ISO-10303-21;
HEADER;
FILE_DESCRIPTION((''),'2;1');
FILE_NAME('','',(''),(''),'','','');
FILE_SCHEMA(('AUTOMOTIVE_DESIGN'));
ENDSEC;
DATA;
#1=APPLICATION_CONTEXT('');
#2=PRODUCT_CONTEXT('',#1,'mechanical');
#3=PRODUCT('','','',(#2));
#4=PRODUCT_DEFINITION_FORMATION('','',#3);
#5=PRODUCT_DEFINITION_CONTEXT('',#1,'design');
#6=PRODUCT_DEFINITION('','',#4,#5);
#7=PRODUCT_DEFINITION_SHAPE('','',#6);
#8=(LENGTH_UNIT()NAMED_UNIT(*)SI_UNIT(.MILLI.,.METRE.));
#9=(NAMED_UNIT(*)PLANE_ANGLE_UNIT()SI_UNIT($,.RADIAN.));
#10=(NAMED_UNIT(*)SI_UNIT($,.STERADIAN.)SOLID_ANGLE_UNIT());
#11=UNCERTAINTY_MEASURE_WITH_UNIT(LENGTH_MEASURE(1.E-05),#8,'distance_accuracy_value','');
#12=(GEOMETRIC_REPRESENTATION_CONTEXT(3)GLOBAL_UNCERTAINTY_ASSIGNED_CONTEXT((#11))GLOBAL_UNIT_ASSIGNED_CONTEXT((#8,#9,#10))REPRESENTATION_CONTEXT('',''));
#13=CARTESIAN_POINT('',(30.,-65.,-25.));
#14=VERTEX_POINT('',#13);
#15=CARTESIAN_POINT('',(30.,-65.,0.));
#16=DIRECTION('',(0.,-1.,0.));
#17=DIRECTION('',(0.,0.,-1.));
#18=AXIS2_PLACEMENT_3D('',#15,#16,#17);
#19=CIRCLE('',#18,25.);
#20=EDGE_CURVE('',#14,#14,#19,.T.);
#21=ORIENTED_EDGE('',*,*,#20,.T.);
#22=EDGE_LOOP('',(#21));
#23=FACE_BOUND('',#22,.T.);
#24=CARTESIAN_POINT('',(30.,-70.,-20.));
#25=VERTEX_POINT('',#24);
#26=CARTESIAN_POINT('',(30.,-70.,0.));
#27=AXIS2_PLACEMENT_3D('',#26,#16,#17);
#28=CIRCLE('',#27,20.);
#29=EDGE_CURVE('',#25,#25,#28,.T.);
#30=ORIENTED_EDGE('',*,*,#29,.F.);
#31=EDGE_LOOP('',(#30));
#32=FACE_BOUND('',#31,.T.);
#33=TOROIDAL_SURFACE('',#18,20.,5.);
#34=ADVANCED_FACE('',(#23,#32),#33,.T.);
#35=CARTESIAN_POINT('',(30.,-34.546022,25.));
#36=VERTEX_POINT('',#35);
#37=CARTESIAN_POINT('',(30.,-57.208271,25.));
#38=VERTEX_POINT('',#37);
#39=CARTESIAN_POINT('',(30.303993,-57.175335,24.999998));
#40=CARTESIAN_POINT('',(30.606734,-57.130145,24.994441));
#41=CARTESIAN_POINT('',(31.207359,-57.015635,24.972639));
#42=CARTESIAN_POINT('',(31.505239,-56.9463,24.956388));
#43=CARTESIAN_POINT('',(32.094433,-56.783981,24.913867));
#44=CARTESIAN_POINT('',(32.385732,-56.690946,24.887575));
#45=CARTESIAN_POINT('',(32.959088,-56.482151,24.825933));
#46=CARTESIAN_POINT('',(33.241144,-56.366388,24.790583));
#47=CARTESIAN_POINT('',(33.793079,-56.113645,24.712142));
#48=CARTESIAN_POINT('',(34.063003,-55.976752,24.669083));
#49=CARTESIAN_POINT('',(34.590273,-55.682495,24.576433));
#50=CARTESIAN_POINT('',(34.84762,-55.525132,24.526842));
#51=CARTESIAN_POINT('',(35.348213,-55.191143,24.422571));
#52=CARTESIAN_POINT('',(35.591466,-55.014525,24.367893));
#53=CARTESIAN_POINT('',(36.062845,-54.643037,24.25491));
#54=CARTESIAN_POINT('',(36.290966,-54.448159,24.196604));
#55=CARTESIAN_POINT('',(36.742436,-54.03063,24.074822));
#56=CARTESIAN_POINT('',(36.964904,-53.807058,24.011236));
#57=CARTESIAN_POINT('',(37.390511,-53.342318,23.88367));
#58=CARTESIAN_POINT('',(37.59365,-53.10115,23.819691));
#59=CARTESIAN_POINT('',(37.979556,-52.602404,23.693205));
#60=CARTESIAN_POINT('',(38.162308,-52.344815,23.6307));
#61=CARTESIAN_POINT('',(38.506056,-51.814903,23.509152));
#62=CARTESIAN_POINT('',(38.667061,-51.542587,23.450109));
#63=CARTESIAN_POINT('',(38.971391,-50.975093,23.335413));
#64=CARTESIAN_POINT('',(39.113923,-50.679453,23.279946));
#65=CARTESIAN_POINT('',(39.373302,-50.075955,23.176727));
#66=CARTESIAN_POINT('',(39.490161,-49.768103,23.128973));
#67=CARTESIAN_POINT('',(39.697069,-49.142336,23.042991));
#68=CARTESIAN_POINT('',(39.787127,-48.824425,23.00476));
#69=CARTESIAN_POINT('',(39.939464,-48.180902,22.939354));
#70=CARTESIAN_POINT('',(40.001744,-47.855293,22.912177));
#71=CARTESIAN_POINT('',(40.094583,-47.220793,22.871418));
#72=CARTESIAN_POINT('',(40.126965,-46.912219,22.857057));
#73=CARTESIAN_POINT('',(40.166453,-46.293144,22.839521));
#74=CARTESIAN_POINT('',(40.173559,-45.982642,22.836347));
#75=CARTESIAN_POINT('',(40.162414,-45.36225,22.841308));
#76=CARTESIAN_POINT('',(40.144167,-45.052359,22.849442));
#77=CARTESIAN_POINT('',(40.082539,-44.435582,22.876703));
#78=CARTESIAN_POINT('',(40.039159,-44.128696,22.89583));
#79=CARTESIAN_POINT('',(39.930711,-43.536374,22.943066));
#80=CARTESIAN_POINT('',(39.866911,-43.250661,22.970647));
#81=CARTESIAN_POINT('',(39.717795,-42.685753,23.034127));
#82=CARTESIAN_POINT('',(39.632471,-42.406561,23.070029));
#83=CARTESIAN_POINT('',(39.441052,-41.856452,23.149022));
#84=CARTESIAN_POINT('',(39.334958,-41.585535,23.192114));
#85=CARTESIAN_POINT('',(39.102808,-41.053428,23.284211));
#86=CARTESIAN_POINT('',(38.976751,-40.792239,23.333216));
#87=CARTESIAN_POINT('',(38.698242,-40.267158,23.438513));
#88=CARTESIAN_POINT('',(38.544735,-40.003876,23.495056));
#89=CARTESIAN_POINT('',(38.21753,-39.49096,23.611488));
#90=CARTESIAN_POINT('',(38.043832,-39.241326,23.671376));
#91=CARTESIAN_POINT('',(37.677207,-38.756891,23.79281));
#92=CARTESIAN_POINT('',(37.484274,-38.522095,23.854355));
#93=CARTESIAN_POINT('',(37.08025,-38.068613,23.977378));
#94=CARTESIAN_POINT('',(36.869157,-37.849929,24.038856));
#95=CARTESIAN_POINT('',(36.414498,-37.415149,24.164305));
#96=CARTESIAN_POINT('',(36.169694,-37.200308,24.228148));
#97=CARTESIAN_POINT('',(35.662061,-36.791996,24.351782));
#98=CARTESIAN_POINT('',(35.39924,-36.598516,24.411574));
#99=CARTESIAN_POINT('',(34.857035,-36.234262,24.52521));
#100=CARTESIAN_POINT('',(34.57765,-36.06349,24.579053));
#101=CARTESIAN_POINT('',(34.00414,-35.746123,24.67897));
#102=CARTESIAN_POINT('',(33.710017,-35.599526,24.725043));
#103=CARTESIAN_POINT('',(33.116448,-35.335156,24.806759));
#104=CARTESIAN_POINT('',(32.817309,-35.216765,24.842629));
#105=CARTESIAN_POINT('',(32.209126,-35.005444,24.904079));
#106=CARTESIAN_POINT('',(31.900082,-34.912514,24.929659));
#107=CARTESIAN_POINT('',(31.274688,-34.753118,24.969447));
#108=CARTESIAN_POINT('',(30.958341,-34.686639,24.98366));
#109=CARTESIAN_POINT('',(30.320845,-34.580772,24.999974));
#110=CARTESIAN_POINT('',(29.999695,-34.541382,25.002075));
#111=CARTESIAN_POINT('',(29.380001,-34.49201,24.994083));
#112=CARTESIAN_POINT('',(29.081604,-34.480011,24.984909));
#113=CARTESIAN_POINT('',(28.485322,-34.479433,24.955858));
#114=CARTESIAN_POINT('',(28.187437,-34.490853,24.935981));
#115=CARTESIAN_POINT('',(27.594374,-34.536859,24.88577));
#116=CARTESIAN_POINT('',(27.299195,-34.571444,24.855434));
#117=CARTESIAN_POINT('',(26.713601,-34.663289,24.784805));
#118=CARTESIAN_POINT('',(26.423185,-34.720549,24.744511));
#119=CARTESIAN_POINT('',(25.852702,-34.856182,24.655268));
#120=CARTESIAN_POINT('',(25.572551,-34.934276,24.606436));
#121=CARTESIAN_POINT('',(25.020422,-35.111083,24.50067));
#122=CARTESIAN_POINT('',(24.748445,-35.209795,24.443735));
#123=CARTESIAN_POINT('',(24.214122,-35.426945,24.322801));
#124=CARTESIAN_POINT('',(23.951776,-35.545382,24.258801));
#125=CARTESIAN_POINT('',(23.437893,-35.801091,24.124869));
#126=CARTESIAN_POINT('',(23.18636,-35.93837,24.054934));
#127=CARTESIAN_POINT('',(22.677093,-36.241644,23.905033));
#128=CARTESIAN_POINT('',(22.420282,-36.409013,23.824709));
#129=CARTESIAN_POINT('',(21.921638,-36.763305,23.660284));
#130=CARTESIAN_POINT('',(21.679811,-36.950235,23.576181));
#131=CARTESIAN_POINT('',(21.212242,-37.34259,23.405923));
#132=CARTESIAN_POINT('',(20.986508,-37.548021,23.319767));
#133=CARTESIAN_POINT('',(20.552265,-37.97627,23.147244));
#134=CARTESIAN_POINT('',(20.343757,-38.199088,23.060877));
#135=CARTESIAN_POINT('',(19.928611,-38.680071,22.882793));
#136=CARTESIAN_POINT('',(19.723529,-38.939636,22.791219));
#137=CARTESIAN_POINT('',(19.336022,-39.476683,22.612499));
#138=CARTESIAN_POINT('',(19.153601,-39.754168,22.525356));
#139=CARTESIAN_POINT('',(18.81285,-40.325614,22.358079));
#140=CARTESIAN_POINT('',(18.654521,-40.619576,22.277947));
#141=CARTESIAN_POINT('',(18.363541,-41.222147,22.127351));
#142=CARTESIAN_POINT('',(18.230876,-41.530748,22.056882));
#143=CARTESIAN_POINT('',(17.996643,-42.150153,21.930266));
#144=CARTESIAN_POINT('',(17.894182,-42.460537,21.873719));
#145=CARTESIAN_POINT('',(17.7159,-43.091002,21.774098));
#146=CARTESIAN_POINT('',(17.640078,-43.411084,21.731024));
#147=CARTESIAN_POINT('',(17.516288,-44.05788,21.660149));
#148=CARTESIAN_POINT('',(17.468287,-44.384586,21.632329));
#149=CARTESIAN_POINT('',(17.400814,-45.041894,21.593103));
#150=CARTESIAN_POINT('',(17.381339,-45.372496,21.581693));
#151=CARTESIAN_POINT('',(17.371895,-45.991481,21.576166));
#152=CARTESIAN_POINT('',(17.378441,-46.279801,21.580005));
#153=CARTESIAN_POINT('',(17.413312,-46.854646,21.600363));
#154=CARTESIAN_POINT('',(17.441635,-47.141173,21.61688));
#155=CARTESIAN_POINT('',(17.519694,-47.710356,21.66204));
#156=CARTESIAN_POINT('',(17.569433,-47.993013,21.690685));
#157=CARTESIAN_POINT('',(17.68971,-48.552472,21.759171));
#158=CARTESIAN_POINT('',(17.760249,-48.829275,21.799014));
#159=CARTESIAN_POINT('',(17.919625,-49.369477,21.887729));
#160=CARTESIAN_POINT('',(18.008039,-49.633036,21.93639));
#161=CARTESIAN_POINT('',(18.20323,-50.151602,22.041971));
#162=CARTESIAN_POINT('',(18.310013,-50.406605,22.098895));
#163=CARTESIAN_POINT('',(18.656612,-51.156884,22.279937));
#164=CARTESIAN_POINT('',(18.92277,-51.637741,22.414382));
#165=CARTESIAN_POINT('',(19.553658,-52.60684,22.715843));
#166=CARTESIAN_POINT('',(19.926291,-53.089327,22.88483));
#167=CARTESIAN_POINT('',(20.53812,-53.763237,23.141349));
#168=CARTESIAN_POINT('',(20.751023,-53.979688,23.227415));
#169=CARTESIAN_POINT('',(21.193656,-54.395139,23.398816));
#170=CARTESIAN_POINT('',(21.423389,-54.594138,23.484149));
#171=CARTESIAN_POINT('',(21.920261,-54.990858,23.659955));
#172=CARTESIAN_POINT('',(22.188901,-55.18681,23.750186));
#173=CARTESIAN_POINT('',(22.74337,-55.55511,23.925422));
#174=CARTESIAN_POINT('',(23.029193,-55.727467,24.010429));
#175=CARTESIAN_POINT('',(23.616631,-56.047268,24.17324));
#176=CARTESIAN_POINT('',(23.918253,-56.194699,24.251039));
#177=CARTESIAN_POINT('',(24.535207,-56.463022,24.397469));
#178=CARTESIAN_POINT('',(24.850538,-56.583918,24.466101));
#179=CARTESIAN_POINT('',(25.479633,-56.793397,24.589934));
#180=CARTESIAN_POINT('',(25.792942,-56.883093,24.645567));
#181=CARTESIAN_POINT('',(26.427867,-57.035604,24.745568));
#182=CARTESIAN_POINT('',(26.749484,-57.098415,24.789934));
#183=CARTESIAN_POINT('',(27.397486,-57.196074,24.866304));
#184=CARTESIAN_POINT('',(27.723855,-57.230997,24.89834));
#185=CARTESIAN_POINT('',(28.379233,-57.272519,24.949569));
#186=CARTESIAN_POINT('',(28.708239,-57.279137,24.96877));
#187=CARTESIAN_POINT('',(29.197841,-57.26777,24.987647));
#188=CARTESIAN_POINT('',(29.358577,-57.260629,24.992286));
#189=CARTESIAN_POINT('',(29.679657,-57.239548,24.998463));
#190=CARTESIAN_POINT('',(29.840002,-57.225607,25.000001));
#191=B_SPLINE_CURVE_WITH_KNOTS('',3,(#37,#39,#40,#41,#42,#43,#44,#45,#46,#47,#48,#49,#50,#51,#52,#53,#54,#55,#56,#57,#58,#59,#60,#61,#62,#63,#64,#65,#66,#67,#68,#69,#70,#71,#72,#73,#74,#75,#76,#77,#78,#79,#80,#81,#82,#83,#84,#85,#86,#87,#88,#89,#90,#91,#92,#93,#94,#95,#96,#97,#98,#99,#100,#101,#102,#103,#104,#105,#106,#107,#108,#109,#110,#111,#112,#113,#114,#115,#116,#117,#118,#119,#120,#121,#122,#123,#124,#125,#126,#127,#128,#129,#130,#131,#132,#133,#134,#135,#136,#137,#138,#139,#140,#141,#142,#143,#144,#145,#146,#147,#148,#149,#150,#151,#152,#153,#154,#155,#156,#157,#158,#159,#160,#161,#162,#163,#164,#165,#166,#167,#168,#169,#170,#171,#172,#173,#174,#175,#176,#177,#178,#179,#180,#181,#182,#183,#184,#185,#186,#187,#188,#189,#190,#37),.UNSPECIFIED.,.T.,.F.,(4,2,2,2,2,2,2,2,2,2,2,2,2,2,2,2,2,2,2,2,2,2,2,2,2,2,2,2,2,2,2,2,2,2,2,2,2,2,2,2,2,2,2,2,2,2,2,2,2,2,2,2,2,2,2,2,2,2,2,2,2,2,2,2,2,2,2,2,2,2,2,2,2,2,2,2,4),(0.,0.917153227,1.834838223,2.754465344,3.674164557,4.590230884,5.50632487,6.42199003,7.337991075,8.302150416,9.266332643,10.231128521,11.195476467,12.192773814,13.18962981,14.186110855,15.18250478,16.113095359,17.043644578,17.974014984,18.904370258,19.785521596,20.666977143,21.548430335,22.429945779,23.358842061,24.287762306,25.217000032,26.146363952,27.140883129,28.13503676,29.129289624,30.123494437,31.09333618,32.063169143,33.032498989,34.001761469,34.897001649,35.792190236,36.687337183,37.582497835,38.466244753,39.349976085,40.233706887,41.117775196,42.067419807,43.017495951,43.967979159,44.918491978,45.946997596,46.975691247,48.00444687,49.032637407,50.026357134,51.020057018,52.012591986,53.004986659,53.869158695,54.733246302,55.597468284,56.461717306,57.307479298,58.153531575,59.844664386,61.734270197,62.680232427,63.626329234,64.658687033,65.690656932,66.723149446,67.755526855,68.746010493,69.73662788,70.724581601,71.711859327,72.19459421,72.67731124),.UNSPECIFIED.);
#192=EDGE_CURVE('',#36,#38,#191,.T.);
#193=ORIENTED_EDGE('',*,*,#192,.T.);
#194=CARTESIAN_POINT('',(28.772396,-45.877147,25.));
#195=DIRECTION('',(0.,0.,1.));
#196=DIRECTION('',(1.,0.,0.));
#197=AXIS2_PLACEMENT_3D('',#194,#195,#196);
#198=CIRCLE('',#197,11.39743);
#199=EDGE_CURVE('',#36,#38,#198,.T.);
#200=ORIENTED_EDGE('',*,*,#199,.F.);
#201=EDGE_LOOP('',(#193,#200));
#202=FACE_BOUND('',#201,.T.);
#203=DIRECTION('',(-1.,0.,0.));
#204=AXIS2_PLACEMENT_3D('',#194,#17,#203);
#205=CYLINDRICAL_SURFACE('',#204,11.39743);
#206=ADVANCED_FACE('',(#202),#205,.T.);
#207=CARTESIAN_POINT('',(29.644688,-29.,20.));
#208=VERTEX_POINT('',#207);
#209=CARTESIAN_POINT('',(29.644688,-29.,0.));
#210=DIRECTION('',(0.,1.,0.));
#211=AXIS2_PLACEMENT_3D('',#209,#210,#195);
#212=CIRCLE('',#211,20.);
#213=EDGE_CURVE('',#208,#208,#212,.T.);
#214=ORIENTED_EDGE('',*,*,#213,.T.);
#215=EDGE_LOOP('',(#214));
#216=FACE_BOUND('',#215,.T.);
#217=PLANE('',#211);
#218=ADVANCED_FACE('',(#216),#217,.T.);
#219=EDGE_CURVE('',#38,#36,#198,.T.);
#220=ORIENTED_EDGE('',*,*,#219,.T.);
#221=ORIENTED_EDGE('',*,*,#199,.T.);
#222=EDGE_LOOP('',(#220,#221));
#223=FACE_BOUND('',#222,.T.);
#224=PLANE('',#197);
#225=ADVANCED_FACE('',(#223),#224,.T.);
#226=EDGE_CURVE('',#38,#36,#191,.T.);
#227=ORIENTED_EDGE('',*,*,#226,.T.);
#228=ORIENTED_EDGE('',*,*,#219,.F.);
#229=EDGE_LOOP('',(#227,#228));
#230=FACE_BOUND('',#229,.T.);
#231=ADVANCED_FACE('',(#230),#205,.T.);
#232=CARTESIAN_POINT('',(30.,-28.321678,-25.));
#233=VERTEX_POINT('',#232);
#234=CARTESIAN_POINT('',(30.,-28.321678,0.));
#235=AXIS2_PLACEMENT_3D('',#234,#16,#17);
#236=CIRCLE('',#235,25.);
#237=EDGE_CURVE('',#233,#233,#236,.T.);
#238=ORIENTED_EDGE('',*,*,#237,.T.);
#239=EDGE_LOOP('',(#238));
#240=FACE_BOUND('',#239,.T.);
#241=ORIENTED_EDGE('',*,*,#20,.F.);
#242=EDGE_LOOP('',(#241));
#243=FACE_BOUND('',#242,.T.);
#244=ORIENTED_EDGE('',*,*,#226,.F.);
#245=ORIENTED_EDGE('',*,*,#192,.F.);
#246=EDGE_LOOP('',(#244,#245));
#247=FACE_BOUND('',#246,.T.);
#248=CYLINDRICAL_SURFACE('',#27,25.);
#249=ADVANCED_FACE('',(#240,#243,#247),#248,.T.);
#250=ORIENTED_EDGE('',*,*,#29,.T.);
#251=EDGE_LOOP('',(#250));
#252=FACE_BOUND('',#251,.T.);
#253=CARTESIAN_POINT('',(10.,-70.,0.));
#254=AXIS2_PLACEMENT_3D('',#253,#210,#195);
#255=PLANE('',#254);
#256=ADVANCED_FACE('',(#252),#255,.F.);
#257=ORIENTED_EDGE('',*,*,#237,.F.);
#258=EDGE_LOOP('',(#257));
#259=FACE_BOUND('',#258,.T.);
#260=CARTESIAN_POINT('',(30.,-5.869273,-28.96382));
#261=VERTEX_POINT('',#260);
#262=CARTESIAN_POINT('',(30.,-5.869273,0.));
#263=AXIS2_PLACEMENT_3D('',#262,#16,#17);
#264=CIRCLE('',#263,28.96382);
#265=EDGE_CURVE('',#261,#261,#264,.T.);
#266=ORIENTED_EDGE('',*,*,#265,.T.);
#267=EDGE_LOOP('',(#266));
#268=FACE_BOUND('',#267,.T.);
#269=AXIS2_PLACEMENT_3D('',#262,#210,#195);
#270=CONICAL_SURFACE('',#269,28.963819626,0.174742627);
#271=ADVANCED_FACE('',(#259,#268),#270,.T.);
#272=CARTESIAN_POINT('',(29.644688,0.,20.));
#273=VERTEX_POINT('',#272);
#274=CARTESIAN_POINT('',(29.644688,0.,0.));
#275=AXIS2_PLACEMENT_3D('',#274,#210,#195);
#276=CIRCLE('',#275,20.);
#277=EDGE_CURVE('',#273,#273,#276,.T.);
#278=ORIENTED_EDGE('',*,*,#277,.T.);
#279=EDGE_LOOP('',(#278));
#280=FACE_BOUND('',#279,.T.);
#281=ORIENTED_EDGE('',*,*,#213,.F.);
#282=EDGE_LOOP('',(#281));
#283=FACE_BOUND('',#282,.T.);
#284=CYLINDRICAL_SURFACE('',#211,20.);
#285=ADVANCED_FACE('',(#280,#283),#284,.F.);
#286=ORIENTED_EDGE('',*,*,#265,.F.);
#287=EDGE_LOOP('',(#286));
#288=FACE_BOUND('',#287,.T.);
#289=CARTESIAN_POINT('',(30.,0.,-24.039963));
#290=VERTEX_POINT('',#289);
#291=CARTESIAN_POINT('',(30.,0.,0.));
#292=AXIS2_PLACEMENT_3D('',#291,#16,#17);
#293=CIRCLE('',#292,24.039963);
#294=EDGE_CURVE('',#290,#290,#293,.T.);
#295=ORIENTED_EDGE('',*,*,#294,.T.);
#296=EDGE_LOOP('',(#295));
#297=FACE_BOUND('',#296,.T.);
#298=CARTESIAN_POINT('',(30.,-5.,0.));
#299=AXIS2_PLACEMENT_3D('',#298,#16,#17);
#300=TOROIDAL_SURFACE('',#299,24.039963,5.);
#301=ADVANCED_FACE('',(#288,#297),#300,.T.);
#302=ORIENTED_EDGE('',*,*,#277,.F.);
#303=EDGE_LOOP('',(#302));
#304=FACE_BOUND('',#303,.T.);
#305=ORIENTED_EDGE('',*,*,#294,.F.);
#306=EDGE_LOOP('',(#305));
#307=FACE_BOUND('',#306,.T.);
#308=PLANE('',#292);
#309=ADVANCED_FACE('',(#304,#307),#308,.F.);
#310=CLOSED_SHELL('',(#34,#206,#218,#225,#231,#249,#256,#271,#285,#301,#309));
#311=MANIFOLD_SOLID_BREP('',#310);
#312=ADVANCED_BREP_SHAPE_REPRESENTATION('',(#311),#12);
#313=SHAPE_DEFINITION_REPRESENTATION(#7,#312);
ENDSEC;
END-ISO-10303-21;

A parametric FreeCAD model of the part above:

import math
import FreeCAD as App
import Part
import Sketcher
from FreeCAD import Vector
Q = App.Units.Quantity

doc = App.newDocument("Part")
body = doc.addObject("PartDesign::Body", "Body")

sketch1 = body.newObject("Sketcher::SketchObject", "Sketch")
sketch1.AttachmentSupport = (doc.getObject("XY_Plane"), [""])
sketch1.MapMode = "FlatFace"
sketch1.addGeometry(Part.LineSegment(Vector(1, -6, 0), Vector(5, -28, 0)), False)
sketch1.addGeometry(Part.LineSegment(Vector(5, -28, 0), Vector(5, -65, 0)), False)
sketch1.addGeometry(Part.ArcOfCircle(Part.Circle(Vector(10, -65, 0), Vector(0, 0, 1), 5), math.radians(180), math.radians(270)), False)
sketch1.addGeometry(Part.LineSegment(Vector(10, -70, 0), Vector(30, -70, 0)), False)
sketch1.addGeometry(Part.LineSegment(Vector(30, -70, 0), Vector(30, 0, 0)), False)
sketch1.addGeometry(Part.LineSegment(Vector(30, 0, 0), Vector(6, 0, 0)), False)
sketch1.addGeometry(Part.ArcOfCircle(Part.Circle(Vector(6, -5, 0), Vector(0, 0, 1), 5), math.radians(90), math.radians(190)), False)
sketch1.addGeometry(Part.LineSegment(Vector(30, -70, 0), Vector(30, 0, 0)), True)
sketch1.addConstraint(Sketcher.Constraint("Coincident", 0, 2, 1, 1))
sketch1.addConstraint(Sketcher.Constraint("Tangent", 1, 2, 2, 1))
sketch1.addConstraint(Sketcher.Constraint("Tangent", 2, 2, 3, 1))
sketch1.addConstraint(Sketcher.Constraint("Coincident", 3, 2, 4, 1))
sketch1.addConstraint(Sketcher.Constraint("Coincident", 4, 2, 5, 1))
sketch1.addConstraint(Sketcher.Constraint("Tangent", 5, 2, 6, 1))
sketch1.addConstraint(Sketcher.Constraint("Tangent", 6, 2, 0, 1))
sketch1.addConstraint(Sketcher.Constraint("Vertical", 1))
sketch1.addConstraint(Sketcher.Constraint("Horizontal", 3))
sketch1.addConstraint(Sketcher.Constraint("Vertical", 4))
sketch1.addConstraint(Sketcher.Constraint("Horizontal", 5))
sketch1.addConstraint(Sketcher.Constraint("Vertical", 7))
sketch1.addConstraint(Sketcher.Constraint("Coincident", 7, 1, 3, 2))
sketch1.addConstraint(Sketcher.Constraint("Equal", 2, 6))
sketch1.addConstraint(Sketcher.Constraint("PointOnObject", 4, 2, -1))
sketch1.addConstraint(Sketcher.Constraint("PointOnObject", 7, 2, -1))
sketch1.addConstraint(Sketcher.Constraint("Radius", 2, Q("5 mm")))
sketch1.addConstraint(Sketcher.Constraint("DistanceX", 3, 1, 3, 2, Q("20 mm")))
sketch1.addConstraint(Sketcher.Constraint("DistanceY", 4, 1, 4, 2, Q("70 mm")))
sketch1.addConstraint(Sketcher.Constraint("DistanceX", -1, 1, 2, 3, Q("10 mm")))
sketch1.addConstraint(Sketcher.Constraint("DistanceY", 1, 2, 1, 1, Q("36.678322 mm")))
sketch1.addConstraint(Sketcher.Constraint("DistanceX", 5, 2, 5, 1, Q("24.039963 mm")))
revolution = body.newObject("PartDesign::Revolution", "Revolution")
revolution.Profile = sketch1
revolution.ReferenceAxis = (sketch1, ["Axis0"])
revolution.Angle = 360

sketch2 = body.newObject("Sketcher::SketchObject", "Sketch001")
sketch2.AttachmentSupport = (doc.getObject("XZ_Plane"), [""])
sketch2.MapMode = "FlatFace"
sketch2.addGeometry(Part.Circle(Vector(30, 0, 0), Vector(0, 0, 1), 20), False)
sketch2.addConstraint(Sketcher.Constraint("PointOnObject", 0, 3, -1))
sketch2.addConstraint(Sketcher.Constraint("Diameter", 0, Q("40 mm")))
sketch2.addConstraint(Sketcher.Constraint("DistanceX", -1, 1, 0, 3, Q("29.644688 mm")))
pocket1 = body.newObject("PartDesign::Pocket", "Pocket")
pocket1.Profile = sketch2
pocket1.Length = 29
pocket1.Reversed = True

sketch3 = body.newObject("Sketcher::SketchObject", "Sketch002")
sketch3.AttachmentSupport = (doc.getObject("XY_Plane"), [""])
sketch3.MapMode = "FlatFace"
sketch3.addGeometry(Part.Circle(Vector(29, -46, 0), Vector(0, 0, 1), 11), False)
sketch3.addConstraint(Sketcher.Constraint("Diameter", 0, Q("22.794859 mm")))
sketch3.addConstraint(Sketcher.Constraint("DistanceX", -1, 1, 0, 3, Q("28.772396 mm")))
sketch3.addConstraint(Sketcher.Constraint("DistanceY", 0, 3, -1, 1, Q("45.877147 mm")))
pad1 = body.newObject("PartDesign::Pad", "Pad")
pad1.Profile = sketch3
pad1.Length = 25

doc.recompute()
